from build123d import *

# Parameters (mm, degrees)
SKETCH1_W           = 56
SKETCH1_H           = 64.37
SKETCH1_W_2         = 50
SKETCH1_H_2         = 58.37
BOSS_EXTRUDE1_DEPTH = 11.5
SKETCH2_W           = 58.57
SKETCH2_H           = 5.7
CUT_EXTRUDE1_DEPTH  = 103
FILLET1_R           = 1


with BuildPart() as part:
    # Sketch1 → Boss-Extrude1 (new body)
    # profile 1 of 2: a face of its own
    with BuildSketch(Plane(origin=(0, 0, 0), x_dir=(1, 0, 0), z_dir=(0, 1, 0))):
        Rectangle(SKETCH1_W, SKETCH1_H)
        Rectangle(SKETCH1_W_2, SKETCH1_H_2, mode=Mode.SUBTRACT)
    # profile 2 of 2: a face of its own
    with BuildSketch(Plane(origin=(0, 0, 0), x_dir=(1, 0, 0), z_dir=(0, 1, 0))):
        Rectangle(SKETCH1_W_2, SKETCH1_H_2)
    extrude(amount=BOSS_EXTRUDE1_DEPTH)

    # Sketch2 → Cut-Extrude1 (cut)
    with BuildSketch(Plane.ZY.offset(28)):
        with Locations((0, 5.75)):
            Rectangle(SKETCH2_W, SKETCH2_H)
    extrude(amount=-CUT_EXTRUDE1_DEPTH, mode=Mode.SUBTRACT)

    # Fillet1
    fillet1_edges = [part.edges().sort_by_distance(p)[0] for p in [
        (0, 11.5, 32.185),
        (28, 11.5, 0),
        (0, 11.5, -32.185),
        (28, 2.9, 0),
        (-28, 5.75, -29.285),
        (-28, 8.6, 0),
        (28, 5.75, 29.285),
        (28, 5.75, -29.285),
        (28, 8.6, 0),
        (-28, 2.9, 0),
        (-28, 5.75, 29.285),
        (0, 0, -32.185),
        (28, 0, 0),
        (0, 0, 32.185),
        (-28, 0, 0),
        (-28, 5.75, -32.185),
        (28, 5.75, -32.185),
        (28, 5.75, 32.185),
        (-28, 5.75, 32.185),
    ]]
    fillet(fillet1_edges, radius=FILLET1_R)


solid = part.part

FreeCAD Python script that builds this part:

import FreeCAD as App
import Part
import Sketcher
Q = App.Units.Quantity


def edges_at(feature, points):
    """Names of the edges that pass closest to the given points."""
    edges = feature.Shape.Edges
    near = lambda p: min(range(len(edges)), key=lambda i: edges[i].distToShape(Part.Vertex(*p))[0])
    return sorted({f"Edge{near(p) + 1}" for p in points})


def add_polygon(sketch, points):
    """Adds a closed chain of lines whose ends are joined by coincident constraints."""
    first, n = sketch.GeometryCount, len(points)
    for a, b in zip(points, points[1:] + points[:1]):
        sketch.addGeometry(Part.LineSegment(App.Vector(*a, 0), App.Vector(*b, 0)), False)
    for i in range(n):
        sketch.addConstraint(Sketcher.Constraint("Coincident", first + i, 2, first + (i + 1) % n, 1))

doc = App.newDocument("Part")
body = doc.addObject("PartDesign::Body", "Body")

sketch1 = body.newObject("Sketcher::SketchObject", "Sketch")
sketch1.AttachmentSupport = (doc.getObject("XZ_Plane"), [""])
sketch1.MapMode = "FlatFace"
add_polygon(sketch1, [(-28, -32), (-28, 32), (28, 32), (28, -32)])
sketch1.addConstraint([
    Sketcher.Constraint("Vertical", 0),
    Sketcher.Constraint("Horizontal", 1),
    Sketcher.Constraint("Vertical", 2),
    Sketcher.Constraint("Horizontal", 3),
    Sketcher.Constraint("Symmetric", 0, 2, 2, 2, -1, 1),
    Sketcher.Constraint("DistanceX", 1, 1, 1, 2, Q("56 mm")),
    Sketcher.Constraint("DistanceY", 0, 1, 0, 2, Q("64.37 mm")),
])
pad1 = body.newObject("PartDesign::Pad", "Pad")
pad1.Profile = sketch1
pad1.Length = 11.5
pad1.Reversed = True

sketch2 = body.newObject("Sketcher::SketchObject", "Sketch001")
sketch2.AttachmentSupport = (doc.getObject("YZ_Plane"), [""])
sketch2.MapMode = "FlatFace"
sketch2.AttachmentOffset = App.Placement(App.Vector(0, 0, -28), App.Rotation())
add_polygon(sketch2, [(9, -29), (3, -29), (3, 29), (9, 29)])
sketch2.addConstraint([
    Sketcher.Constraint("Horizontal", 0),
    Sketcher.Constraint("Vertical", 1),
    Sketcher.Constraint("Horizontal", 2),
    Sketcher.Constraint("Vertical", 3),
    Sketcher.Constraint("DistanceX", 0, 2, 0, 1, Q("5.7 mm")),
    Sketcher.Constraint("DistanceY", 1, 1, 1, 2, Q("58.57 mm")),
    Sketcher.Constraint("DistanceX", -1, 1, 0, 2, Q("2.9 mm")),
    Sketcher.Constraint("DistanceY", 0, 2, -1, 1, Q("29.285 mm")),
])
pocket1 = body.newObject("PartDesign::Pocket", "Pocket")
pocket1.Profile = sketch2
pocket1.Length = 103
pocket1.Reversed = True
doc.recompute()

fillet = body.newObject("PartDesign::Fillet", "Fillet")
fillet.Base = (pocket1, edges_at(pocket1, [
    (0, 11.5, 32.185),
    (28, 11.5, 0),
    (0, 11.5, -32.185),
    (28, 2.9, 0),
    (-28, 5.75, -29.285),
    (-28, 8.6, 0),
    (28, 5.75, 29.285),
    (28, 5.75, -29.285),
    (28, 8.6, 0),
    (-28, 2.9, 0),
    (-28, 5.75, 29.285),
    (0, 0, -32.185),
    (28, 0, 0),
    (0, 0, 32.185),
    (-28, 0, 0),
    (-28, 5.75, -32.185),
    (28, 5.75, -32.185),
    (28, 5.75, 32.185),
    (-28, 5.75, 32.185),
]))
fillet.Radius = 1

doc.recompute()
